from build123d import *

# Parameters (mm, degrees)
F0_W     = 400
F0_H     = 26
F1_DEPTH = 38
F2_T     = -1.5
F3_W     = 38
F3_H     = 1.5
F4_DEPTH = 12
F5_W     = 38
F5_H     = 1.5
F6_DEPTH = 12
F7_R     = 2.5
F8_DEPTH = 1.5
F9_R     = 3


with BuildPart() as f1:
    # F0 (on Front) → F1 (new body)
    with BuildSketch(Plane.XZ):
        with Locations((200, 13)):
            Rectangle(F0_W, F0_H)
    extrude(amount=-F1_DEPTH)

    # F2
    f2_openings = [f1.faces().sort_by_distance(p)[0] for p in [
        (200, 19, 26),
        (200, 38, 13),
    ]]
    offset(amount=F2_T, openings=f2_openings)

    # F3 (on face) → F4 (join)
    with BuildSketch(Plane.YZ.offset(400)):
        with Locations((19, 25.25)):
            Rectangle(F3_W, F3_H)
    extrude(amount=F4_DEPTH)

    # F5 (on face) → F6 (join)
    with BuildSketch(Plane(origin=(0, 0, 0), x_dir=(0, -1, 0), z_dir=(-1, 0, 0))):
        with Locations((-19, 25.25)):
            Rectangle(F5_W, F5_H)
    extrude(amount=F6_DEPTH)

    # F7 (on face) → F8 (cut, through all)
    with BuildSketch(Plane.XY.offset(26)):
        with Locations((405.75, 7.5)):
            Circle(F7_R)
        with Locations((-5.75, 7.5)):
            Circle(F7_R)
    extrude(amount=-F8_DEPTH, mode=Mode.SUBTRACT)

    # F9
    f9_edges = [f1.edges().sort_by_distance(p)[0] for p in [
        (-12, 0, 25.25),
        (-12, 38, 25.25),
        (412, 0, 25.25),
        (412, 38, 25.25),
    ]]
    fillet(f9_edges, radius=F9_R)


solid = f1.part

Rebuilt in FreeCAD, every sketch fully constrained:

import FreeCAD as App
import Part
import Sketcher
Q = App.Units.Quantity


def edges_at(feature, points):
    """Names of the edges that pass closest to the given points."""
    edges = feature.Shape.Edges
    near = lambda p: min(range(len(edges)), key=lambda i: edges[i].distToShape(Part.Vertex(*p))[0])
    return sorted({f"Edge{near(p) + 1}" for p in points})


def faces_at(feature, points):
    """Names of the faces that lie closest to the given points."""
    faces = feature.Shape.Faces
    near = lambda p: min(range(len(faces)), key=lambda i: faces[i].distToShape(Part.Vertex(*p))[0])
    return sorted({f"Face{near(p) + 1}" for p in points})


def add_polygon(sketch, points):
    """Adds a closed chain of lines whose ends are joined by coincident constraints."""
    first, n = sketch.GeometryCount, len(points)
    for a, b in zip(points, points[1:] + points[:1]):
        sketch.addGeometry(Part.LineSegment(App.Vector(*a, 0), App.Vector(*b, 0)), False)
    for i in range(n):
        sketch.addConstraint(Sketcher.Constraint("Coincident", first + i, 2, first + (i + 1) % n, 1))

doc = App.newDocument("Part")
body = doc.addObject("PartDesign::Body", "Body")

# Sketch on XZ plane
sketch1 = body.newObject("Sketcher::SketchObject", "Sketch")
sketch1.AttachmentSupport = (doc.getObject("XZ_Plane"), [""])
sketch1.MapMode = "FlatFace"
add_polygon(sketch1, [(0, 26), (0, 0), (400, 0), (400, 26)])  # lines 0-3
sketch1.addConstraint(Sketcher.Constraint("Vertical", 0))
sketch1.addConstraint(Sketcher.Constraint("Horizontal", 1))
sketch1.addConstraint(Sketcher.Constraint("Vertical", 2))
sketch1.addConstraint(Sketcher.Constraint("Horizontal", 3))
sketch1.addConstraint(Sketcher.Constraint("Coincident", 0, 2, -1, 1))
sketch1.addConstraint(Sketcher.Constraint("DistanceX", 1, 1, 1, 2, Q("400 mm")))
sketch1.addConstraint(Sketcher.Constraint("DistanceY", 0, 2, 0, 1, Q("26 mm")))
pad1 = body.newObject("PartDesign::Pad", "Pad")
pad1.Profile = sketch1
pad1.Length = 38
pad1.Reversed = True
doc.recompute()

thickness = body.newObject("PartDesign::Thickness", "Thickness")
thickness.Base = (pad1, faces_at(pad1, [(200, 19, 26), (200, 38, 13)]))
thickness.Value = 1.5
thickness.Reversed = True
thickness.Join = "Arc"

# Sketch on YZ plane
sketch2 = body.newObject("Sketcher::SketchObject", "Sketch001")
sketch2.AttachmentSupport = (doc.getObject("YZ_Plane"), [""])
sketch2.MapMode = "FlatFace"
sketch2.AttachmentOffset = App.Placement(App.Vector(0, 0, 400), App.Rotation())
add_polygon(sketch2, [(0, 26), (0, 24.5), (38, 24.5), (38, 26)])  # lines 0-3
sketch2.addConstraint(Sketcher.Constraint("Vertical", 0))
sketch2.addConstraint(Sketcher.Constraint("Horizontal", 1))
sketch2.addConstraint(Sketcher.Constraint("Vertical", 2))
sketch2.addConstraint(Sketcher.Constraint("Horizontal", 3))
sketch2.addConstraint(Sketcher.Constraint("PointOnObject", 0, 2, -2))
sketch2.addConstraint(Sketcher.Constraint("DistanceX", 1, 1, 1, 2, Q("38 mm")))
sketch2.addConstraint(Sketcher.Constraint("DistanceY", 0, 2, 0, 1, Q("1.5 mm")))
sketch2.addConstraint(Sketcher.Constraint("DistanceY", -1, 1, 2, 2, Q("26 mm")))
pad2 = body.newObject("PartDesign::Pad", "Pad001")
pad2.Profile = sketch2
pad2.Length = 12

# Sketch on YZ plane
sketch3 = body.newObject("Sketcher::SketchObject", "Sketch002")
sketch3.AttachmentSupport = (doc.getObject("YZ_Plane"), [""])
sketch3.MapMode = "FlatFace"
add_polygon(sketch3, [(38, 26), (38, 24.5), (0, 24.5), (0, 26)])  # lines 0-3
sketch3.addConstraint(Sketcher.Constraint("Vertical", 0))
sketch3.addConstraint(Sketcher.Constraint("Horizontal", 1))
sketch3.addConstraint(Sketcher.Constraint("Vertical", 2))
sketch3.addConstraint(Sketcher.Constraint("Horizontal", 3))
sketch3.addConstraint(Sketcher.Constraint("PointOnObject", 1, 2, -2))
sketch3.addConstraint(Sketcher.Constraint("DistanceX", 1, 2, 1, 1, Q("38 mm")))
sketch3.addConstraint(Sketcher.Constraint("DistanceY", 0, 2, 0, 1, Q("1.5 mm")))
sketch3.addConstraint(Sketcher.Constraint("DistanceY", -1, 1, 2, 2, Q("26 mm")))
pad3 = body.newObject("PartDesign::Pad", "Pad002")
pad3.Profile = sketch3
pad3.Length = 12
pad3.Reversed = True

# Sketch on XY plane
sketch4 = body.newObject("Sketcher::SketchObject", "Sketch003")
sketch4.AttachmentSupport = (doc.getObject("XY_Plane"), [""])
sketch4.MapMode = "FlatFace"
sketch4.AttachmentOffset = App.Placement(App.Vector(0, 0, 26), App.Rotation())
sketch4.addGeometry(Part.Circle(App.Vector(405.8, 7.5, 0), App.Vector(0, 0, 1), 2.5), False)
sketch4.addGeometry(Part.Circle(App.Vector(-5.8, 7.5, 0), App.Vector(0, 0, 1), 2.5), False)
sketch4.addConstraint(Sketcher.Constraint("Equal", 0, 1))
sketch4.addConstraint(Sketcher.Constraint("Horizontal", 0, 3, 1, 3))
sketch4.addConstraint(Sketcher.Constraint("Diameter", 0, Q("5 mm")))
sketch4.addConstraint(Sketcher.Constraint("DistanceY", -1, 1, 0, 3, Q("7.5 mm")))
sketch4.addConstraint(Sketcher.Constraint("DistanceX", 1, 3, 0, 3, Q("411.5 mm")))
sketch4.addConstraint(Sketcher.Constraint("DistanceX", -1, 1, 0, 3, Q("405.75 mm")))
pocket1 = body.newObject("PartDesign::Pocket", "Pocket")
pocket1.Profile = sketch4
pocket1.Type = "ThroughAll"
doc.recompute()

fillet = body.newObject("PartDesign::Fillet", "Fillet")
fillet.Base = (pocket1, edges_at(pocket1, [
    (-12, 0, 25.25),
    (-12, 38, 25.25),
    (412, 0, 25.25),
    (412, 38, 25.25),
]))
fillet.Radius = 3

doc.recompute()
